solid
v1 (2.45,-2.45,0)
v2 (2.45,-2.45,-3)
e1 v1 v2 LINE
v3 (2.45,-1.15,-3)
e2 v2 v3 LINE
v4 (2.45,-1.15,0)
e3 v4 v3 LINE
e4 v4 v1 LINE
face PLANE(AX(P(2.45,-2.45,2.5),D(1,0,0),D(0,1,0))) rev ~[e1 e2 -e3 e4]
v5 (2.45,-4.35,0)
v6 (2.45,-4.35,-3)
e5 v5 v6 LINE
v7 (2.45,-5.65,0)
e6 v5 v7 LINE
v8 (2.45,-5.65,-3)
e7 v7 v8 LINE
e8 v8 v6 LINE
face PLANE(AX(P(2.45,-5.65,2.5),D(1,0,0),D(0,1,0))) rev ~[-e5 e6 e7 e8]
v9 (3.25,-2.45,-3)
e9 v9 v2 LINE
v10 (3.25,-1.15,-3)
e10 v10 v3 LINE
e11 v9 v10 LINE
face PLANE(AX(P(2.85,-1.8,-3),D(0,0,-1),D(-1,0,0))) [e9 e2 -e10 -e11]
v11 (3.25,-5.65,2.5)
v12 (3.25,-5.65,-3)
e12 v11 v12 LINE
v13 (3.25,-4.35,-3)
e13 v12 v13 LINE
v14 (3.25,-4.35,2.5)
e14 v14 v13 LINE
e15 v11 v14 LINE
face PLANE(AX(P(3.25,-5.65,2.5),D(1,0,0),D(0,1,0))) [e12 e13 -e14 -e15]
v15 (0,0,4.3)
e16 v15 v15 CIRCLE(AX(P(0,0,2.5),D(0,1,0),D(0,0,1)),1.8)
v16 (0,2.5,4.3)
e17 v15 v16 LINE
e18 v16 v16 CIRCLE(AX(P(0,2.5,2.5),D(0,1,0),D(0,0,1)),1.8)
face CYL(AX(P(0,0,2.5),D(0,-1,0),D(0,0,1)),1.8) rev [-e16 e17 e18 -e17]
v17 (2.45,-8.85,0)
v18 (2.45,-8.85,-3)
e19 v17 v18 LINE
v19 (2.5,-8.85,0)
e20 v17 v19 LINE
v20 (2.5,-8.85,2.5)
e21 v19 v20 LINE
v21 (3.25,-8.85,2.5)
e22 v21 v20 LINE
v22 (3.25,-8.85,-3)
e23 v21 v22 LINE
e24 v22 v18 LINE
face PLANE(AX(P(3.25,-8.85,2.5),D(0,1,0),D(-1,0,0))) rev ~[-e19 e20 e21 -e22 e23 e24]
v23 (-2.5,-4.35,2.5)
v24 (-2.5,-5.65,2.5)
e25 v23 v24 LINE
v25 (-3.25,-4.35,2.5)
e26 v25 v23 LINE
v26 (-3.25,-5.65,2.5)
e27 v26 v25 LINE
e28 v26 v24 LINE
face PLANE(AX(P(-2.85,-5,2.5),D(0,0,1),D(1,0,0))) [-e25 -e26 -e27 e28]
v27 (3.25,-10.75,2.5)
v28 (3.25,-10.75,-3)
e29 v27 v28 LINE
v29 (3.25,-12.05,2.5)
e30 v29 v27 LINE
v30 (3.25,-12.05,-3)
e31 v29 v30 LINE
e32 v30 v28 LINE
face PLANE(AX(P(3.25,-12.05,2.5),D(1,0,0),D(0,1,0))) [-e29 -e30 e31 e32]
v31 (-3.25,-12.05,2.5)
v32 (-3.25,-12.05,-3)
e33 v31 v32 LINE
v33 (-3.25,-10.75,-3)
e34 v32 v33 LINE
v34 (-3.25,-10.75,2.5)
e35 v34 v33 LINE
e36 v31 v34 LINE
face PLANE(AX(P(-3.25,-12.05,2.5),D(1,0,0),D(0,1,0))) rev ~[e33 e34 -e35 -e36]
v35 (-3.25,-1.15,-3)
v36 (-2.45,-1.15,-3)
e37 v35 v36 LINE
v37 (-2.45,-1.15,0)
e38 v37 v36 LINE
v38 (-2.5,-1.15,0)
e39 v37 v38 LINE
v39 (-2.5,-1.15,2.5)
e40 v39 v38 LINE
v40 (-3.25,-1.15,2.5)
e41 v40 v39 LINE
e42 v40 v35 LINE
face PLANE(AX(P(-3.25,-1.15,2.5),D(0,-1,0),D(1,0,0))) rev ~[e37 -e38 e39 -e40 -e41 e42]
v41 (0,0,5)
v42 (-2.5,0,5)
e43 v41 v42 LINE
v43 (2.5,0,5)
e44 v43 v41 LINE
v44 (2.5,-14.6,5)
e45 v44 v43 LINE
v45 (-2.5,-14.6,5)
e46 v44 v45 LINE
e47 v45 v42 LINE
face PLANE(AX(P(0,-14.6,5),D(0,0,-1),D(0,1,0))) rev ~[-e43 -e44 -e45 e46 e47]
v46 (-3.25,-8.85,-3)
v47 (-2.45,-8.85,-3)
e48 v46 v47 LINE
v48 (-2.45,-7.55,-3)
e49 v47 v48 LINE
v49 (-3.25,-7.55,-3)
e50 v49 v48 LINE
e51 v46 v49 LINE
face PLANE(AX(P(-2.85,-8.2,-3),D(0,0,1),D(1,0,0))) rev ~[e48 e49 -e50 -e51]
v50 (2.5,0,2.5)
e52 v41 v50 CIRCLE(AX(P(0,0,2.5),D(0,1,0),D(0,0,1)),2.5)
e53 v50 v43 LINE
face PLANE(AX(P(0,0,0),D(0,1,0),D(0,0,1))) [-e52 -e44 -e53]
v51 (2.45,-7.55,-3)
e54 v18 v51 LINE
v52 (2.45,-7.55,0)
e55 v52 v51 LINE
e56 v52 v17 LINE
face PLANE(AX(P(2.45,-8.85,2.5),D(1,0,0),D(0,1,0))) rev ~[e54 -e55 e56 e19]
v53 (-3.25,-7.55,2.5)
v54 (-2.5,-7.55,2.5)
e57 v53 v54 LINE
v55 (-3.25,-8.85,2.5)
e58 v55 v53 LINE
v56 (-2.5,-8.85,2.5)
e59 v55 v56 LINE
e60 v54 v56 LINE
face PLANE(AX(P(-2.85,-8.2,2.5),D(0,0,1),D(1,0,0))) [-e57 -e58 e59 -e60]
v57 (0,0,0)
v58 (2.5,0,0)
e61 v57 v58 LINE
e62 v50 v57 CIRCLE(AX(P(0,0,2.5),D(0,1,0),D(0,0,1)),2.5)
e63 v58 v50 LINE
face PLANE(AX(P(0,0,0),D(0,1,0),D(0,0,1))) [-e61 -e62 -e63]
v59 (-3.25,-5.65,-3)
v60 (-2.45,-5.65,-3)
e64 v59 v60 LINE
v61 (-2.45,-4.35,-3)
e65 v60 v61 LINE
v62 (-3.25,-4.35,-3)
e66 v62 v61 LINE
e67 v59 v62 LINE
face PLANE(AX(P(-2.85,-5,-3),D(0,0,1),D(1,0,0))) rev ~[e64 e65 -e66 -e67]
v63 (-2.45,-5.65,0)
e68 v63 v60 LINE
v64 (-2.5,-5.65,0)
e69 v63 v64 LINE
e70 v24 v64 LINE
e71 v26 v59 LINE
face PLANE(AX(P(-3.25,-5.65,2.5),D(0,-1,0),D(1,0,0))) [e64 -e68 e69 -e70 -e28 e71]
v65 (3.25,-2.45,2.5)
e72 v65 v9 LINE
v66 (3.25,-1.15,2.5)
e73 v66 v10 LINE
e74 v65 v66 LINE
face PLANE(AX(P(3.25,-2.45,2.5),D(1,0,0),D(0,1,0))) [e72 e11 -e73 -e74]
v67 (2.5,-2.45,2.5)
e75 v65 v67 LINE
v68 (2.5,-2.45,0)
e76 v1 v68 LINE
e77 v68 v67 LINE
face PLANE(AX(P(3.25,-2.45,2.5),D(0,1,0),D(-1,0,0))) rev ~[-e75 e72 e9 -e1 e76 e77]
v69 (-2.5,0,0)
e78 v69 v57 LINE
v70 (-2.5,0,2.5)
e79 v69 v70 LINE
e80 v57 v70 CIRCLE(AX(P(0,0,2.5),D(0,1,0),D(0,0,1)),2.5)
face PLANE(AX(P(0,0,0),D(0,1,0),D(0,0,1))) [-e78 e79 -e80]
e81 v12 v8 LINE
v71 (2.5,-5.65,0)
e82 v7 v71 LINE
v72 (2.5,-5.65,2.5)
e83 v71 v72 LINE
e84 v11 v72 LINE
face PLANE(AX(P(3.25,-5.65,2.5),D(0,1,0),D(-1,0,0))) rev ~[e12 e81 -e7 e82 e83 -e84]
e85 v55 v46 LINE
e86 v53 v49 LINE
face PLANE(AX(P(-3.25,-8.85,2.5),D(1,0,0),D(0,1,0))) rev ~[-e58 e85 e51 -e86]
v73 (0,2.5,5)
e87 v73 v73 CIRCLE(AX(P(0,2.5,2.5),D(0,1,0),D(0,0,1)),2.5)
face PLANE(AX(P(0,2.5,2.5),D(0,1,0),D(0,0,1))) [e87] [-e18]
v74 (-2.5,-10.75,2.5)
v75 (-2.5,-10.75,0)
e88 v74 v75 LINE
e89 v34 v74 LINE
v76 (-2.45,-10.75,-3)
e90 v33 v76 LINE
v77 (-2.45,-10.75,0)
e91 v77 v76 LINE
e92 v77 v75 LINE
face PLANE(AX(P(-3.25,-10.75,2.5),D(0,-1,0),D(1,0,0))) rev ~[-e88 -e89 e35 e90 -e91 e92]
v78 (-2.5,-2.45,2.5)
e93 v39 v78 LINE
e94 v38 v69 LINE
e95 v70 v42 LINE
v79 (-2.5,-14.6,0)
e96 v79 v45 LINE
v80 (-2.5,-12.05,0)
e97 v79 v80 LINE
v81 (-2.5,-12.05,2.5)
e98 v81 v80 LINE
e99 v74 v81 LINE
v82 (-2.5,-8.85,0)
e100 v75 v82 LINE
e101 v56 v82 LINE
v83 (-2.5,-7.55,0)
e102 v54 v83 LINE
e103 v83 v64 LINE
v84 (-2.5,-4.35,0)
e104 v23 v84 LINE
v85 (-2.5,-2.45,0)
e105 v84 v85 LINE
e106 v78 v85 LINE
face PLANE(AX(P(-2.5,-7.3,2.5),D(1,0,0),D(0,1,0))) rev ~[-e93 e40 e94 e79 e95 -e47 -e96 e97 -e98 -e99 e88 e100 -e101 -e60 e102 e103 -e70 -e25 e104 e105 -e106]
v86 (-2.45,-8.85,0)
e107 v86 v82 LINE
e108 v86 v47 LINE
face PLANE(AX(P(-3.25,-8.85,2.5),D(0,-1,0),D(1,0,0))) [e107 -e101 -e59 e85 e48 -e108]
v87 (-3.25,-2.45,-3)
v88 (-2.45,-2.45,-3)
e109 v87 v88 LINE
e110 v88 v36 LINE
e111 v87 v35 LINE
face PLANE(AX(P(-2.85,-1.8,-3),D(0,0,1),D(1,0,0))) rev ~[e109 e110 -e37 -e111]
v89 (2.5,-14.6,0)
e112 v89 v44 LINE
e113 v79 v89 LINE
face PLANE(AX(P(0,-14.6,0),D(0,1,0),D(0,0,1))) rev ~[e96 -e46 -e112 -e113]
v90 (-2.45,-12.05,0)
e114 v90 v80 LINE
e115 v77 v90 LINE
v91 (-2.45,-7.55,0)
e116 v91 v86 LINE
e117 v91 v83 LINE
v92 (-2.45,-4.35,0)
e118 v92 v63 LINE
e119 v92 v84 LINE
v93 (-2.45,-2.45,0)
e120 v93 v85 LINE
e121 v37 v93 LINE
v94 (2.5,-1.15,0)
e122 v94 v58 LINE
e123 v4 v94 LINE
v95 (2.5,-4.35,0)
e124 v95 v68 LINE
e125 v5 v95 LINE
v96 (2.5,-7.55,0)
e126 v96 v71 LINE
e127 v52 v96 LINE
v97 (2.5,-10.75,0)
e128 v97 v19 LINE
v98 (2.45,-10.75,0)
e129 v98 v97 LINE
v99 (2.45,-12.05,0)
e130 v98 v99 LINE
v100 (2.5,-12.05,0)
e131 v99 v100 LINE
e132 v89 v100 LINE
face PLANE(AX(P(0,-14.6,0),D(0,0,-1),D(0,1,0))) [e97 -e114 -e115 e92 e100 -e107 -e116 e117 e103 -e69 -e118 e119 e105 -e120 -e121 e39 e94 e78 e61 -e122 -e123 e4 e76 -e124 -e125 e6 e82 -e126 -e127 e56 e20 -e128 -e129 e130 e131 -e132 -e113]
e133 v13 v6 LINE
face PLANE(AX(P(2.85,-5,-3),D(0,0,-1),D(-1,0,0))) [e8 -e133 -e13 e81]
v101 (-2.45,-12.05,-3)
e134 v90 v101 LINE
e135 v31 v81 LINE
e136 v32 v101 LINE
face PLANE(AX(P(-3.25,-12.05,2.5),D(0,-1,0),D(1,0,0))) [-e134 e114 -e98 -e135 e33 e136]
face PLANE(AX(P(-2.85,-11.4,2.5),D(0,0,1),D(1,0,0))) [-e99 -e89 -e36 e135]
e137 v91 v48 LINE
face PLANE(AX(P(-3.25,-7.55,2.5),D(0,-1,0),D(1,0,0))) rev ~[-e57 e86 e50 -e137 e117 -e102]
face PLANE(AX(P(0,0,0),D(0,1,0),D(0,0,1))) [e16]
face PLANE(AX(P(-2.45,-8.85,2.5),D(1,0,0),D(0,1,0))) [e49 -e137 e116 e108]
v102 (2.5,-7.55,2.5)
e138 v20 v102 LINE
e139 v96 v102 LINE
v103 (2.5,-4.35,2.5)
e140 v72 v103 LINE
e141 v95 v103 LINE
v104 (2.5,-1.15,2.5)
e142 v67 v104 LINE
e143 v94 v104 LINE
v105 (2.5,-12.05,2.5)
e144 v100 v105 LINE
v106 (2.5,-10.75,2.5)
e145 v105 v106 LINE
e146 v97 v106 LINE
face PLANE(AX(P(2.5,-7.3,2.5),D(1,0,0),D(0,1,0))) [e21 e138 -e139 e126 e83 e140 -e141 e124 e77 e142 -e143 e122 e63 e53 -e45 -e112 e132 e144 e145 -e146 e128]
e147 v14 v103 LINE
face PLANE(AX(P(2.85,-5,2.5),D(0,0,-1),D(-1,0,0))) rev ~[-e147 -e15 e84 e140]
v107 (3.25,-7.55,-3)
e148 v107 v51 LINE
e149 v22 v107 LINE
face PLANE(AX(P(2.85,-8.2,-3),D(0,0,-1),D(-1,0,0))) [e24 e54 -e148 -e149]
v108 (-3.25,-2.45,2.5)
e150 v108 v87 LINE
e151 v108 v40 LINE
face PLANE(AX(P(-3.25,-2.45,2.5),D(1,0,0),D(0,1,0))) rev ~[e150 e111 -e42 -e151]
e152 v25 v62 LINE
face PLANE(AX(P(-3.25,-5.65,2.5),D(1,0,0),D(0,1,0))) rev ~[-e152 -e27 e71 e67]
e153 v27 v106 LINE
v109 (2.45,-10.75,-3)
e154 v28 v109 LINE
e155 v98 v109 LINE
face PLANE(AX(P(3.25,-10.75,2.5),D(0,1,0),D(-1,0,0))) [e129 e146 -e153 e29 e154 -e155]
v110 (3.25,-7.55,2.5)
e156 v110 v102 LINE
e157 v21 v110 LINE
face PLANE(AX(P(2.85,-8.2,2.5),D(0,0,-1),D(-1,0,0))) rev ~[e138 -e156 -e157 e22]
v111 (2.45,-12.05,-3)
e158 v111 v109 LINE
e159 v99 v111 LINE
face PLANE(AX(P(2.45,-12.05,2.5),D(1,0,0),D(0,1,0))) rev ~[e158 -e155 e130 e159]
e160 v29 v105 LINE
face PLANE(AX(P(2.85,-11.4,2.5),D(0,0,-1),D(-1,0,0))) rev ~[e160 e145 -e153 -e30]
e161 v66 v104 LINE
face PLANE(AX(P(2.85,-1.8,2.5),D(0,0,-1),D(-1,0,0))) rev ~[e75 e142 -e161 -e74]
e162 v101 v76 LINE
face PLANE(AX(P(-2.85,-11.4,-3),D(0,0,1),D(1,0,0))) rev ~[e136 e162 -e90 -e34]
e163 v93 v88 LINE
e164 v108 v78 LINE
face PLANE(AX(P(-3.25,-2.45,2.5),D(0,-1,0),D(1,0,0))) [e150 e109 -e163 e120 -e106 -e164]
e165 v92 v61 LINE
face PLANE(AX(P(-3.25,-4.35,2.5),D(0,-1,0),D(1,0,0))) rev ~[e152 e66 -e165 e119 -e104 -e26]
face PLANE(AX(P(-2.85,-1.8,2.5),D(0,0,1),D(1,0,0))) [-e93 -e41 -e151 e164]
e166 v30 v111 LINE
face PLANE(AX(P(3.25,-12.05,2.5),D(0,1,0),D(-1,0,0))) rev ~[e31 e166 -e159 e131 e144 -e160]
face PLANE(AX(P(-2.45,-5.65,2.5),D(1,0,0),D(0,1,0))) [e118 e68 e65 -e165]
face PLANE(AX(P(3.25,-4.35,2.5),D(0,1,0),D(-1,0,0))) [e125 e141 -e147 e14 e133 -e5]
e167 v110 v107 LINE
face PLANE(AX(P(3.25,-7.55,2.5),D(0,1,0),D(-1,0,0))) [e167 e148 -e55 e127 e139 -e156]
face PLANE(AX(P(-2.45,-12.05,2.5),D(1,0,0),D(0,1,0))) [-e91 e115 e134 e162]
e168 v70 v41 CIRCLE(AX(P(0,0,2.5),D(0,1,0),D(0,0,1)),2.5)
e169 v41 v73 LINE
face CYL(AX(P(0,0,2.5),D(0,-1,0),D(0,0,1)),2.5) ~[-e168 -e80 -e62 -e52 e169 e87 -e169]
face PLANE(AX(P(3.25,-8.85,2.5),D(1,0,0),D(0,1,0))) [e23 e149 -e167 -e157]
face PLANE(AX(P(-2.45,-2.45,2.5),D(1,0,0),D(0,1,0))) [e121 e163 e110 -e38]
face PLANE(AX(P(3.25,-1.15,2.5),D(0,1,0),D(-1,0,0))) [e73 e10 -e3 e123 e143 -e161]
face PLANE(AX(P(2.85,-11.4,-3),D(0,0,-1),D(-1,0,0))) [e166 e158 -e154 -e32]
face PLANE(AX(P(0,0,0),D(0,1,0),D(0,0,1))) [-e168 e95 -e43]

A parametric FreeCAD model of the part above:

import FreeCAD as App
import Part
import Sketcher

V = App.Vector
Q = App.Units.Quantity


def add_polygon(sketch, points):
    """Adds a closed chain of lines whose ends are joined by coincident constraints."""
    first, n = sketch.GeometryCount, len(points)
    for a, b in zip(points, points[1:] + points[:1]):
        sketch.addGeometry(Part.LineSegment(App.Vector(*a, 0), App.Vector(*b, 0)), False)
    for i in range(n):
        sketch.addConstraint(Sketcher.Constraint("Coincident", first + i, 2, first + (i + 1) % n, 1))

doc = App.newDocument("Part")
body = doc.addObject("PartDesign::Body", "Body")

sketch1 = body.newObject("Sketcher::SketchObject", "Sketch")
sketch1.AttachmentSupport = (doc.getObject("YZ_Plane"), [""])
sketch1.MapMode = "FlatFace"
add_polygon(sketch1, [(-15, 5), (-15, 0), (0, 0), (0, 5)])
sketch1.addConstraint([
    Sketcher.Constraint("Vertical", 0),
    Sketcher.Constraint("Horizontal", 1),
    Sketcher.Constraint("Vertical", 2),
    Sketcher.Constraint("Horizontal", 3),
    Sketcher.Constraint("Coincident", 1, 2, -1, 1),
    Sketcher.Constraint("DistanceY", 0, 2, 0, 1, Q("5 mm")),
    Sketcher.Constraint("DistanceX", 1, 1, 1, 2, Q("14.6 mm")),
])
pad1 = body.newObject("PartDesign::Pad", "Pad")
pad1.Profile = sketch1
pad1.Length = 5
pad1.Midplane = True

sketch2 = body.newObject("Sketcher::SketchObject", "Sketch001")
sketch2.AttachmentSupport = (doc.getObject("XZ_Plane"), [""])
sketch2.MapMode = "FlatFace"
sketch2.addGeometry([
    Part.Circle(V(0, 2.5, 0), V(0, 0, 1), 2.5),
    Part.Circle(V(0, 2.5, 0), V(0, 0, 1), 1.8),
], False)
sketch2.addConstraint([
    Sketcher.Constraint("Coincident", 1, 3, 0, 3),
    Sketcher.Constraint("PointOnObject", 0, 3, -2),
    Sketcher.Constraint("Diameter", 0, Q("5 mm")),
    Sketcher.Constraint("Diameter", 1, Q("3.6 mm")),
    Sketcher.Constraint("DistanceY", -1, 1, 0, 3, Q("2.5 mm")),
])
pad2 = body.newObject("PartDesign::Pad", "Pad001")
pad2.Profile = sketch2
pad2.Length = 2.5
pad2.Reversed = True

sketch3 = body.newObject("Sketcher::SketchObject", "Sketch002")
sketch3.AttachmentSupport = (doc.getObject("XY_Plane"), [""])
sketch3.MapMode = "FlatFace"
sketch3.AttachmentOffset = App.Placement(V(0, 0, 2.5), App.Rotation())
add_polygon(sketch3, [(-3.2, -10.8), (-3.2, -12.1), (-2.5, -12.1), (-2.5, -10.8)])
sketch3.addConstraint([
    Sketcher.Constraint("Vertical", 0),
    Sketcher.Constraint("Horizontal", 1),
    Sketcher.Constraint("Vertical", 2),
    Sketcher.Constraint("Horizontal", 3),
    Sketcher.Constraint("DistanceX", 1, 1, 1, 2, Q("0.8 mm")),
    Sketcher.Constraint("DistanceY", 0, 2, 0, 1, Q("1.3 mm")),
    Sketcher.Constraint("DistanceX", 0, 2, -1, 1, Q("3.25 mm")),
    Sketcher.Constraint("DistanceY", 0, 2, -1, 1, Q("12.05 mm")),
])
pad3 = body.newObject("PartDesign::Pad", "Pad002")
pad3.Profile = sketch3
pad3.Length = 5.5
pad3.Reversed = True

sketch4 = body.newObject("Sketcher::SketchObject", "Sketch003")
sketch4.AttachmentSupport = (doc.getObject("XY_Plane"), [""])
sketch4.MapMode = "FlatFace"
sketch4.AttachmentOffset = App.Placement(V(0, 0, 2.5), App.Rotation())
add_polygon(sketch4, [(3.2, -10.8), (3.2, -12.1), (2.5, -12.1), (2.5, -10.8)])
sketch4.addConstraint([
    Sketcher.Constraint("Vertical", 0),
    Sketcher.Constraint("Horizontal", 1),
    Sketcher.Constraint("Vertical", 2),
    Sketcher.Constraint("Horizontal", 3),
    Sketcher.Constraint("DistanceX", 1, 2, 1, 1, Q("0.8 mm")),
    Sketcher.Constraint("DistanceY", 0, 2, 0, 1, Q("1.3 mm")),
    Sketcher.Constraint("DistanceX", -1, 1, 0, 2, Q("3.25 mm")),
    Sketcher.Constraint("DistanceY", 0, 2, -1, 1, Q("12.05 mm")),
])
pad4 = body.newObject("PartDesign::Pad", "Pad003")
pad4.Profile = sketch4
pad4.Length = 5.5
pad4.Reversed = True
doc.recompute()

linearpattern = body.newObject("PartDesign::LinearPattern", "LinearPattern")
linearpattern.Originals = [pad3, pad4]
linearpattern.Direction = (doc.getObject("Y_Axis"), [""])
linearpattern.Mode = "offset"
linearpattern.Offset = 3.2
linearpattern.Occurrences = 4
body.Tip = linearpattern

doc.recompute()
